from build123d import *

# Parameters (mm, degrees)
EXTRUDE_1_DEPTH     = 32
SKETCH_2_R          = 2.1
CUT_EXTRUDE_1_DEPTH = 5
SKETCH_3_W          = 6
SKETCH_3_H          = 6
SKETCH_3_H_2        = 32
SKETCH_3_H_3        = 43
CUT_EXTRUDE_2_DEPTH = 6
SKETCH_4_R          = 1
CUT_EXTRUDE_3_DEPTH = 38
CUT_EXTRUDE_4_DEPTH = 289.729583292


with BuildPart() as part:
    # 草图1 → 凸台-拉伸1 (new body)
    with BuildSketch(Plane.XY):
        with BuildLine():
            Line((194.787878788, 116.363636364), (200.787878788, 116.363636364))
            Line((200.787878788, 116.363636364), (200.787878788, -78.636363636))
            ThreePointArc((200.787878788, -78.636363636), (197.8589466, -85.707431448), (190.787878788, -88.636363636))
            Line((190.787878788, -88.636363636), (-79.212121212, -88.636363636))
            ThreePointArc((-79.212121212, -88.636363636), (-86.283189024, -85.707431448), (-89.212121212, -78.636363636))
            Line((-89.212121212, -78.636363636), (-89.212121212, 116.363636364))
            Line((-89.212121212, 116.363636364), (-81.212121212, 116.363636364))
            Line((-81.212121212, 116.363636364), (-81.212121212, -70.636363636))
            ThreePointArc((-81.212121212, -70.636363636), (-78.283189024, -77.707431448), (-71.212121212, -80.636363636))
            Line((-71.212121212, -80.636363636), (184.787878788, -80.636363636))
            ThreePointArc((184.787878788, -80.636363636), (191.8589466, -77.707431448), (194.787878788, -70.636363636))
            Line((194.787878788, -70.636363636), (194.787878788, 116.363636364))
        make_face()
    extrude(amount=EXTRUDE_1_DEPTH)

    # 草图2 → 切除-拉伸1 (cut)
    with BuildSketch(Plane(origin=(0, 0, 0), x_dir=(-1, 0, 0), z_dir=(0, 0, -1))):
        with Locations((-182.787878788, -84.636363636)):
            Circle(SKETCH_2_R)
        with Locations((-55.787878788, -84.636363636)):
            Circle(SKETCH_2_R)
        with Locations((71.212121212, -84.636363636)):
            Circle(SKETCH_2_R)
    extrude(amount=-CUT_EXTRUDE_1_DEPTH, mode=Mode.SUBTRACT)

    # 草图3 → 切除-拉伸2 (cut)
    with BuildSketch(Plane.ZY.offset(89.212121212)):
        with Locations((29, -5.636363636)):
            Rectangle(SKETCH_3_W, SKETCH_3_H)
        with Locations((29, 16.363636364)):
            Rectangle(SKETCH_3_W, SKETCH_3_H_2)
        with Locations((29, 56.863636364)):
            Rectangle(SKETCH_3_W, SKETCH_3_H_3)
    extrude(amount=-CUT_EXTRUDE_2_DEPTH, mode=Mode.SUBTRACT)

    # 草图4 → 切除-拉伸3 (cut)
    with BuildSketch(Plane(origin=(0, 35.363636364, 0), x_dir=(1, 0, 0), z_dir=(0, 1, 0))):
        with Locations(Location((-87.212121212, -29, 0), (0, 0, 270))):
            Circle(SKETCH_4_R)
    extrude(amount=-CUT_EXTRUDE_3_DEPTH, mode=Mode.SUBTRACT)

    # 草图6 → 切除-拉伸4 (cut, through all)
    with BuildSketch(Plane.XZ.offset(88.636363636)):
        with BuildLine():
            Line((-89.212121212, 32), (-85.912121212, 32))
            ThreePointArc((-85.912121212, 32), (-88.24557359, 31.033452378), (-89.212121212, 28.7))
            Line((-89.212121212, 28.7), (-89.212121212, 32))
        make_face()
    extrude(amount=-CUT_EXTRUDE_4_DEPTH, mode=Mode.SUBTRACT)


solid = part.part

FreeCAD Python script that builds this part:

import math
import FreeCAD as App
import Part
import Sketcher
from FreeCAD import Vector

doc = App.newDocument("Part")
body = doc.addObject("PartDesign::Body", "Body")

sketch1 = body.newObject("Sketcher::SketchObject", "Sketch")
sketch1.AttachmentSupport = (doc.getObject("XY_Plane"), [""])
sketch1.MapMode = "FlatFace"
sketch1.addGeometry([
    Part.LineSegment(Vector(201, 116, 0), Vector(195, 116, 0)),
    Part.LineSegment(Vector(195, 116, 0), Vector(195, -71, 0)),
    Part.ArcOfCircle(Part.Circle(Vector(185, -71, 0), Vector(0, 0, 1), 10), math.radians(-90), math.radians(0)),
    Part.LineSegment(Vector(185, -81, 0), Vector(-71, -81, 0)),
    Part.ArcOfCircle(Part.Circle(Vector(-71, -71, 0), Vector(0, 0, 1), 10), math.radians(180), math.radians(270)),
    Part.LineSegment(Vector(-81, -71, 0), Vector(-81, 116, 0)),
    Part.LineSegment(Vector(-81, 116, 0), Vector(-89, 116, 0)),
    Part.LineSegment(Vector(-89, 116, 0), Vector(-89, -79, 0)),
    Part.ArcOfCircle(Part.Circle(Vector(-79, -79, 0), Vector(0, 0, 1), 10), math.radians(180), math.radians(270)),
    Part.LineSegment(Vector(-79, -89, 0), Vector(191, -89, 0)),
    Part.ArcOfCircle(Part.Circle(Vector(191, -79, 0), Vector(0, 0, 1), 10), math.radians(-90), math.radians(0)),
    Part.LineSegment(Vector(201, -79, 0), Vector(201, 116, 0)),
], False)
sketch1.addConstraint([
    Sketcher.Constraint("Coincident", 0, 2, 1, 1),
    Sketcher.Constraint("Tangent", 1, 2, 2, 2),
    Sketcher.Constraint("Tangent", 2, 1, 3, 1),
    Sketcher.Constraint("Tangent", 3, 2, 4, 2),
    Sketcher.Constraint("Tangent", 4, 1, 5, 1),
    Sketcher.Constraint("Coincident", 5, 2, 6, 1),
    Sketcher.Constraint("Coincident", 6, 2, 7, 1),
    Sketcher.Constraint("Tangent", 7, 2, 8, 1),
    Sketcher.Constraint("Tangent", 8, 2, 9, 1),
    Sketcher.Constraint("Tangent", 9, 2, 10, 1),
    Sketcher.Constraint("Tangent", 10, 2, 11, 1),
    Sketcher.Constraint("Coincident", 11, 2, 0, 1),
    Sketcher.Constraint("Horizontal", 0),
    Sketcher.Constraint("Vertical", 1),
    Sketcher.Constraint("Horizontal", 3),
    Sketcher.Constraint("Vertical", 5),
    Sketcher.Constraint("Horizontal", 6),
    Sketcher.Constraint("Vertical", 7),
    Sketcher.Constraint("Horizontal", 9),
    Sketcher.Constraint("Vertical", 11),
    Sketcher.Constraint("Equal", 2, 4),
    Sketcher.Constraint("Equal", 4, 8),
    Sketcher.Constraint("Equal", 8, 10),
    Sketcher.Constraint("Horizontal", 0, 2, 5, 2),
    Sketcher.Constraint("Radius", 2, 10.0),
    Sketcher.Constraint("DistanceX", 0, 2, 0, 1, 6.0),
    Sketcher.Constraint("DistanceX", 3, 2, 3, 1, 256.0),
    Sketcher.Constraint("DistanceX", 6, 2, 6, 1, 8.0),
    Sketcher.Constraint("DistanceY", 1, 2, 1, 1, 187.0),
    Sketcher.Constraint("DistanceY", 7, 2, 7, 1, 195.0),
    Sketcher.Constraint("DistanceX", -1, 1, 2, 3, 184.787879),
    Sketcher.Constraint("DistanceY", 2, 3, -1, 1, 70.636364),
])
pad1 = body.newObject("PartDesign::Pad", "Pad")
pad1.Profile = sketch1
pad1.Length = 32

sketch2 = body.newObject("Sketcher::SketchObject", "Sketch001")
sketch2.AttachmentSupport = (doc.getObject("XY_Plane"), [""])
sketch2.MapMode = "FlatFace"
sketch2.addGeometry([
    Part.Circle(Vector(182.8, -84.6, 0), Vector(0, 0, 1), 2.1),
    Part.Circle(Vector(55.8, -84.6, 0), Vector(0, 0, 1), 2.1),
    Part.Circle(Vector(-71.2, -84.6, 0), Vector(0, 0, 1), 2.1),
], False)
sketch2.addConstraint([
    Sketcher.Constraint("Equal", 0, 1),
    Sketcher.Constraint("Equal", 1, 2),
    Sketcher.Constraint("Horizontal", 0, 3, 1, 3),
    Sketcher.Constraint("Horizontal", 1, 3, 2, 3),
    Sketcher.Constraint("Diameter", 0, 4.2),
    Sketcher.Constraint("DistanceX", 1, 3, 0, 3, 127.0),
    Sketcher.Constraint("DistanceX", 2, 3, 1, 3, 127.0),
    Sketcher.Constraint("DistanceX", -1, 1, 0, 3, 182.787879),
    Sketcher.Constraint("DistanceY", 0, 3, -1, 1, 84.636364),
])
pocket1 = body.newObject("PartDesign::Pocket", "Pocket")
pocket1.Profile = sketch2
pocket1.Length = 5
pocket1.Reversed = True

sketch3 = body.newObject("Sketcher::SketchObject", "Sketch002")
sketch3.AttachmentSupport = (doc.getObject("YZ_Plane"), [""])
sketch3.MapMode = "FlatFace"
sketch3.AttachmentOffset = App.Placement(Vector(0, 0, -89.212121), App.Rotation())
sketch3.addGeometry([
    Part.LineSegment(Vector(-3, 26, 0), Vector(-9, 26, 0)),
    Part.LineSegment(Vector(-9, 26, 0), Vector(-9, 32, 0)),
    Part.LineSegment(Vector(-9, 32, 0), Vector(-3, 32, 0)),
    Part.LineSegment(Vector(-3, 32, 0), Vector(-3, 26, 0)),
    Part.LineSegment(Vector(32, 26, 0), Vector(0, 26, 0)),
    Part.LineSegment(Vector(0, 26, 0), Vector(0, 32, 0)),
    Part.LineSegment(Vector(0, 32, 0), Vector(32, 32, 0)),
    Part.LineSegment(Vector(32, 32, 0), Vector(32, 26, 0)),
    Part.LineSegment(Vector(78, 26, 0), Vector(35, 26, 0)),
    Part.LineSegment(Vector(35, 26, 0), Vector(35, 32, 0)),
    Part.LineSegment(Vector(35, 32, 0), Vector(78, 32, 0)),
    Part.LineSegment(Vector(78, 32, 0), Vector(78, 26, 0)),
], False)
sketch3.addConstraint([
    Sketcher.Constraint("Coincident", 0, 2, 1, 1),
    Sketcher.Constraint("Coincident", 1, 2, 2, 1),
    Sketcher.Constraint("Coincident", 2, 2, 3, 1),
    Sketcher.Constraint("Coincident", 3, 2, 0, 1),
    Sketcher.Constraint("Coincident", 4, 2, 5, 1),
    Sketcher.Constraint("Coincident", 5, 2, 6, 1),
    Sketcher.Constraint("Coincident", 6, 2, 7, 1),
    Sketcher.Constraint("Coincident", 7, 2, 4, 1),
    Sketcher.Constraint("Coincident", 8, 2, 9, 1),
    Sketcher.Constraint("Coincident", 9, 2, 10, 1),
    Sketcher.Constraint("Coincident", 10, 2, 11, 1),
    Sketcher.Constraint("Coincident", 11, 2, 8, 1),
    Sketcher.Constraint("Horizontal", 0),
    Sketcher.Constraint("Vertical", 1),
    Sketcher.Constraint("Horizontal", 2),
    Sketcher.Constraint("Vertical", 3),
    Sketcher.Constraint("Horizontal", 4),
    Sketcher.Constraint("Vertical", 5),
    Sketcher.Constraint("Horizontal", 6),
    Sketcher.Constraint("Vertical", 7),
    Sketcher.Constraint("Horizontal", 8),
    Sketcher.Constraint("Vertical", 9),
    Sketcher.Constraint("Horizontal", 10),
    Sketcher.Constraint("Vertical", 11),
    Sketcher.Constraint("Horizontal", 3, 2, 4, 2),
    Sketcher.Constraint("Horizontal", 2, 2, 5, 2),
    Sketcher.Constraint("Horizontal", 7, 2, 8, 2),
    Sketcher.Constraint("Horizontal", 6, 2, 9, 2),
    Sketcher.Constraint("Equal", 2, 1),
    Sketcher.Constraint("DistanceX", 0, 2, 0, 1, 6.0),
    Sketcher.Constraint("DistanceX", 4, 2, 4, 1, 32.0),
    Sketcher.Constraint("DistanceX", 8, 2, 8, 1, 43.0),
    Sketcher.Constraint("DistanceY", -1, 1, 0, 2, 26.0),
    Sketcher.Constraint("DistanceX", 3, 2, 4, 2, 3.0),
    Sketcher.Constraint("DistanceX", 7, 2, 8, 2, 3.0),
    Sketcher.Constraint("DistanceX", 0, 2, -1, 1, 8.636364),
])
pocket2 = body.newObject("PartDesign::Pocket", "Pocket001")
pocket2.Profile = sketch3
pocket2.Length = 6
pocket2.Reversed = True

sketch4 = body.newObject("Sketcher::SketchObject", "Sketch003")
sketch4.AttachmentSupport = (doc.getObject("XZ_Plane"), [""])
sketch4.MapMode = "FlatFace"
sketch4.AttachmentOffset = App.Placement(Vector(0, 0, -35.363636), App.Rotation())
sketch4.addGeometry(Part.Circle(Vector(-87.2, 29, 0), Vector(0, 0, 1), 1), False)
sketch4.addConstraint([
    Sketcher.Constraint("Diameter", 0, 2.0),
    Sketcher.Constraint("DistanceY", -1, 1, 0, 3, 29.0),
    Sketcher.Constraint("DistanceX", 0, 3, -1, 1, 87.212121),
])
pocket3 = body.newObject("PartDesign::Pocket", "Pocket002")
pocket3.Profile = sketch4
pocket3.Length = 38
pocket3.Reversed = True

sketch5 = body.newObject("Sketcher::SketchObject", "Sketch004")
sketch5.AttachmentSupport = (doc.getObject("XZ_Plane"), [""])
sketch5.MapMode = "FlatFace"
sketch5.AttachmentOffset = App.Placement(Vector(0, 0, 88.636364), App.Rotation())
sketch5.addGeometry([
    Part.LineSegment(Vector(-85.9, 32, 0), Vector(-89.2, 32, 0)),
    Part.LineSegment(Vector(-89.2, 32, 0), Vector(-89.2, 28.7, 0)),
    Part.ArcOfCircle(Part.Circle(Vector(-85.9, 28.7, 0), Vector(0, 0, 1), 3.3), math.radians(90), math.radians(180)),
], False)
sketch5.addConstraint([
    Sketcher.Constraint("Coincident", 0, 2, 1, 1),
    Sketcher.Constraint("Tangent", 1, 2, 2, 2),
    Sketcher.Constraint("Tangent", 2, 1, 0, 1),
    Sketcher.Constraint("Horizontal", 0),
    Sketcher.Constraint("Vertical", 1),
    Sketcher.Constraint("Radius", 2, 3.3),
    Sketcher.Constraint("DistanceY", -1, 1, 0, 2, 32.0),
    Sketcher.Constraint("DistanceX", 2, 3, -1, 1, 85.912121),
])
pocket4 = body.newObject("PartDesign::Pocket", "Pocket003")
pocket4.Profile = sketch5
pocket4.Type = "ThroughAll"

doc.recompute()
